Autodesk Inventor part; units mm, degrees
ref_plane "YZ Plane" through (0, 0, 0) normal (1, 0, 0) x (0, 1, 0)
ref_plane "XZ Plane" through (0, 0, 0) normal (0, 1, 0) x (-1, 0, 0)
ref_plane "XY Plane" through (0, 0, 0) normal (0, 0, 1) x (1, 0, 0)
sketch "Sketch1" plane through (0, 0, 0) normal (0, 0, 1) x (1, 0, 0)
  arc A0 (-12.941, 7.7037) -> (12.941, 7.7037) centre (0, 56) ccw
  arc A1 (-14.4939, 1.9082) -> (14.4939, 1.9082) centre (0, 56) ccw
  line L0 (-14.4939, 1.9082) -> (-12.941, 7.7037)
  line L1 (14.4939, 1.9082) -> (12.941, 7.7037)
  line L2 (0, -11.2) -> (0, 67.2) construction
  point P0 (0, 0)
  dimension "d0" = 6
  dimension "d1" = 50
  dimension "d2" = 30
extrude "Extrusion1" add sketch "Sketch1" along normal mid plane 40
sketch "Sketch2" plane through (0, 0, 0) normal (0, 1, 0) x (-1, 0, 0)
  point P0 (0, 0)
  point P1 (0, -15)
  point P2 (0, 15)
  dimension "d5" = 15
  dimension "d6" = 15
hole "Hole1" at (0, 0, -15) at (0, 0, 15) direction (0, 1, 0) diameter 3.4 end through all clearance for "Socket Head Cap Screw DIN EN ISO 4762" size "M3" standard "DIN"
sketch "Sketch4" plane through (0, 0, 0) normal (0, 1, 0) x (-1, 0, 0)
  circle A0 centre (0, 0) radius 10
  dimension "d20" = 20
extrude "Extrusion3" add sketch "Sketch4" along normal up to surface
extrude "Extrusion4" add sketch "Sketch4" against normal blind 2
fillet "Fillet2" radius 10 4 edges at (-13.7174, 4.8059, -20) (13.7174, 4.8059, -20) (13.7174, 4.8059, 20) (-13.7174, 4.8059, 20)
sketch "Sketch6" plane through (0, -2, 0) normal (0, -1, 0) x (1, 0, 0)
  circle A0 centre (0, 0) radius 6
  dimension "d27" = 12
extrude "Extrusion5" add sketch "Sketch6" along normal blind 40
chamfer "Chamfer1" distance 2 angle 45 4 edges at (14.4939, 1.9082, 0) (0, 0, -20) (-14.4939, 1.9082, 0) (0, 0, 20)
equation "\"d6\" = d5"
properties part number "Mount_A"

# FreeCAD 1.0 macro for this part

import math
import FreeCAD as App
import Part
import Sketcher
from FreeCAD import Vector
Q = App.Units.Quantity


def edges_at(feature, points):
    """Names of the edges that pass closest to the given points."""
    edges = feature.Shape.Edges
    near = lambda p: min(range(len(edges)), key=lambda i: edges[i].distToShape(Part.Vertex(*p))[0])
    return sorted({f"Edge{near(p) + 1}" for p in points})

doc = App.newDocument("Part")
body = doc.addObject("PartDesign::Body", "Body")

sketch1 = body.newObject("Sketcher::SketchObject", "Sketch")
sketch1.AttachmentSupport = (doc.getObject("XY_Plane"), [""])
sketch1.MapMode = "FlatFace"
sketch1.addGeometry(Part.ArcOfCircle(Part.Circle(Vector(0, 56, 0), Vector(0, 0, 1), 50), math.radians(-105), math.radians(-75)), False)
sketch1.addGeometry(Part.LineSegment(Vector(-13, 8, 0), Vector(-14, 2, 0)), False)
sketch1.addGeometry(Part.ArcOfCircle(Part.Circle(Vector(0, 56, 0), Vector(0, 0, 1), 56), math.radians(-105), math.radians(-75)), False)
sketch1.addGeometry(Part.LineSegment(Vector(14, 2, 0), Vector(13, 8, 0)), False)
sketch1.addConstraint(Sketcher.Constraint("Coincident", 0, 1, 1, 1))
sketch1.addConstraint(Sketcher.Constraint("Coincident", 1, 2, 2, 1))
sketch1.addConstraint(Sketcher.Constraint("Coincident", 2, 2, 3, 1))
sketch1.addConstraint(Sketcher.Constraint("Coincident", 3, 2, 0, 2))
sketch1.addConstraint(Sketcher.Constraint("Coincident", 2, 3, 0, 3))
sketch1.addConstraint(Sketcher.Constraint("Symmetric", 1, 2, 2, 2, -2))
sketch1.addConstraint(Sketcher.Constraint("Horizontal", 0, 1, 3, 2))
sketch1.addConstraint(Sketcher.Constraint("Radius", 0, 50.0))
sketch1.addConstraint(Sketcher.Constraint("Distance", 1, 6.0))
sketch1.addConstraint(Sketcher.Constraint("Angle", 1, Q("-105 deg")))
sketch1.addConstraint(Sketcher.Constraint("DistanceY", -1, 1, 0, 3, 56.0))
sketch1.addConstraint(Sketcher.Constraint("DistanceX", 0, 1, -1, 1, 12.941))
pad1 = body.newObject("PartDesign::Pad", "Pad")
pad1.Profile = sketch1
pad1.Length = 40
pad1.Midplane = True

sketch2 = body.newObject("Sketcher::SketchObject", "Sketch001")
sketch2.AttachmentSupport = (doc.getObject("XZ_Plane"), [""])
sketch2.MapMode = "FlatFace"
sketch2.addGeometry(Part.Circle(Vector(0, -15, 0), Vector(0, 0, 1), 1.7), False)
sketch2.addGeometry(Part.Circle(Vector(0, 15, 0), Vector(0, 0, 1), 1.7), False)
sketch2.addConstraint(Sketcher.Constraint("Equal", 0, 1))
sketch2.addConstraint(Sketcher.Constraint("Symmetric", 0, 3, 1, 3, -1, 1))
sketch2.addConstraint(Sketcher.Constraint("PointOnObject", 0, 3, -2))
sketch2.addConstraint(Sketcher.Constraint("Diameter", 0, 3.4))
sketch2.addConstraint(Sketcher.Constraint("DistanceY", 0, 3, -1, 1, 15.0))
doc.recompute()
hole = body.newObject("PartDesign::Hole", "Hole")
hole.Profile = sketch2
hole.ThreadType = "None"
hole.Diameter = 3.4
hole.DepthType = "ThroughAll"

sketch3 = body.newObject("Sketcher::SketchObject", "Sketch002")
sketch3.AttachmentSupport = (doc.getObject("XZ_Plane"), [""])
sketch3.MapMode = "FlatFace"
sketch3.addGeometry(Part.Circle(Vector(0, 0, 0), Vector(0, 0, 1), 10), False)
sketch3.addConstraint(Sketcher.Constraint("Coincident", 0, 3, -1, 1))
sketch3.addConstraint(Sketcher.Constraint("Diameter", 0, 20.0))
pad2 = body.newObject("PartDesign::Pad", "Pad001")
pad2.Profile = sketch3
pad2.Type = "UpToFirst"
pad2.Reversed = True

sketch4 = body.newObject("Sketcher::SketchObject", "Sketch003")
sketch4.AttachmentSupport = (doc.getObject("XZ_Plane"), [""])
sketch4.MapMode = "FlatFace"
sketch4.addGeometry(Part.Circle(Vector(0, 0, 0), Vector(0, 0, 1), 10), False)
sketch4.addConstraint(Sketcher.Constraint("Coincident", 0, 3, -1, 1))
sketch4.addConstraint(Sketcher.Constraint("Diameter", 0, 20.0))
pad3 = body.newObject("PartDesign::Pad", "Pad002")
pad3.Profile = sketch4
pad3.Length = 2
doc.recompute()

fillet = body.newObject("PartDesign::Fillet", "Fillet")
fillet.Base = (pad3, edges_at(pad3, [
    (-13.717, 4.806, -20),
    (13.717, 4.806, -20),
    (13.717, 4.806, 20),
    (-13.717, 4.806, 20),
]))
fillet.Radius = 10

sketch5 = body.newObject("Sketcher::SketchObject", "Sketch004")
sketch5.AttachmentSupport = (doc.getObject("XZ_Plane"), [""])
sketch5.MapMode = "FlatFace"
sketch5.AttachmentOffset = App.Placement(Vector(0, 0, 2), App.Rotation())
sketch5.addGeometry(Part.Circle(Vector(0, 0, 0), Vector(0, 0, 1), 6), False)
sketch5.addConstraint(Sketcher.Constraint("Coincident", 0, 3, -1, 1))
sketch5.addConstraint(Sketcher.Constraint("Diameter", 0, 12.0))
pad4 = body.newObject("PartDesign::Pad", "Pad003")
pad4.Profile = sketch5
pad4.Length = 40
doc.recompute()

chamfer = body.newObject("PartDesign::Chamfer", "Chamfer")
chamfer.Base = (pad4, edges_at(pad4, [
    (14.494, 1.908, 0),
    (0, 0, -20),
    (-14.494, 1.908, 0),
    (0, 0, 20),
]))
chamfer.Size = 2

doc.recompute()
